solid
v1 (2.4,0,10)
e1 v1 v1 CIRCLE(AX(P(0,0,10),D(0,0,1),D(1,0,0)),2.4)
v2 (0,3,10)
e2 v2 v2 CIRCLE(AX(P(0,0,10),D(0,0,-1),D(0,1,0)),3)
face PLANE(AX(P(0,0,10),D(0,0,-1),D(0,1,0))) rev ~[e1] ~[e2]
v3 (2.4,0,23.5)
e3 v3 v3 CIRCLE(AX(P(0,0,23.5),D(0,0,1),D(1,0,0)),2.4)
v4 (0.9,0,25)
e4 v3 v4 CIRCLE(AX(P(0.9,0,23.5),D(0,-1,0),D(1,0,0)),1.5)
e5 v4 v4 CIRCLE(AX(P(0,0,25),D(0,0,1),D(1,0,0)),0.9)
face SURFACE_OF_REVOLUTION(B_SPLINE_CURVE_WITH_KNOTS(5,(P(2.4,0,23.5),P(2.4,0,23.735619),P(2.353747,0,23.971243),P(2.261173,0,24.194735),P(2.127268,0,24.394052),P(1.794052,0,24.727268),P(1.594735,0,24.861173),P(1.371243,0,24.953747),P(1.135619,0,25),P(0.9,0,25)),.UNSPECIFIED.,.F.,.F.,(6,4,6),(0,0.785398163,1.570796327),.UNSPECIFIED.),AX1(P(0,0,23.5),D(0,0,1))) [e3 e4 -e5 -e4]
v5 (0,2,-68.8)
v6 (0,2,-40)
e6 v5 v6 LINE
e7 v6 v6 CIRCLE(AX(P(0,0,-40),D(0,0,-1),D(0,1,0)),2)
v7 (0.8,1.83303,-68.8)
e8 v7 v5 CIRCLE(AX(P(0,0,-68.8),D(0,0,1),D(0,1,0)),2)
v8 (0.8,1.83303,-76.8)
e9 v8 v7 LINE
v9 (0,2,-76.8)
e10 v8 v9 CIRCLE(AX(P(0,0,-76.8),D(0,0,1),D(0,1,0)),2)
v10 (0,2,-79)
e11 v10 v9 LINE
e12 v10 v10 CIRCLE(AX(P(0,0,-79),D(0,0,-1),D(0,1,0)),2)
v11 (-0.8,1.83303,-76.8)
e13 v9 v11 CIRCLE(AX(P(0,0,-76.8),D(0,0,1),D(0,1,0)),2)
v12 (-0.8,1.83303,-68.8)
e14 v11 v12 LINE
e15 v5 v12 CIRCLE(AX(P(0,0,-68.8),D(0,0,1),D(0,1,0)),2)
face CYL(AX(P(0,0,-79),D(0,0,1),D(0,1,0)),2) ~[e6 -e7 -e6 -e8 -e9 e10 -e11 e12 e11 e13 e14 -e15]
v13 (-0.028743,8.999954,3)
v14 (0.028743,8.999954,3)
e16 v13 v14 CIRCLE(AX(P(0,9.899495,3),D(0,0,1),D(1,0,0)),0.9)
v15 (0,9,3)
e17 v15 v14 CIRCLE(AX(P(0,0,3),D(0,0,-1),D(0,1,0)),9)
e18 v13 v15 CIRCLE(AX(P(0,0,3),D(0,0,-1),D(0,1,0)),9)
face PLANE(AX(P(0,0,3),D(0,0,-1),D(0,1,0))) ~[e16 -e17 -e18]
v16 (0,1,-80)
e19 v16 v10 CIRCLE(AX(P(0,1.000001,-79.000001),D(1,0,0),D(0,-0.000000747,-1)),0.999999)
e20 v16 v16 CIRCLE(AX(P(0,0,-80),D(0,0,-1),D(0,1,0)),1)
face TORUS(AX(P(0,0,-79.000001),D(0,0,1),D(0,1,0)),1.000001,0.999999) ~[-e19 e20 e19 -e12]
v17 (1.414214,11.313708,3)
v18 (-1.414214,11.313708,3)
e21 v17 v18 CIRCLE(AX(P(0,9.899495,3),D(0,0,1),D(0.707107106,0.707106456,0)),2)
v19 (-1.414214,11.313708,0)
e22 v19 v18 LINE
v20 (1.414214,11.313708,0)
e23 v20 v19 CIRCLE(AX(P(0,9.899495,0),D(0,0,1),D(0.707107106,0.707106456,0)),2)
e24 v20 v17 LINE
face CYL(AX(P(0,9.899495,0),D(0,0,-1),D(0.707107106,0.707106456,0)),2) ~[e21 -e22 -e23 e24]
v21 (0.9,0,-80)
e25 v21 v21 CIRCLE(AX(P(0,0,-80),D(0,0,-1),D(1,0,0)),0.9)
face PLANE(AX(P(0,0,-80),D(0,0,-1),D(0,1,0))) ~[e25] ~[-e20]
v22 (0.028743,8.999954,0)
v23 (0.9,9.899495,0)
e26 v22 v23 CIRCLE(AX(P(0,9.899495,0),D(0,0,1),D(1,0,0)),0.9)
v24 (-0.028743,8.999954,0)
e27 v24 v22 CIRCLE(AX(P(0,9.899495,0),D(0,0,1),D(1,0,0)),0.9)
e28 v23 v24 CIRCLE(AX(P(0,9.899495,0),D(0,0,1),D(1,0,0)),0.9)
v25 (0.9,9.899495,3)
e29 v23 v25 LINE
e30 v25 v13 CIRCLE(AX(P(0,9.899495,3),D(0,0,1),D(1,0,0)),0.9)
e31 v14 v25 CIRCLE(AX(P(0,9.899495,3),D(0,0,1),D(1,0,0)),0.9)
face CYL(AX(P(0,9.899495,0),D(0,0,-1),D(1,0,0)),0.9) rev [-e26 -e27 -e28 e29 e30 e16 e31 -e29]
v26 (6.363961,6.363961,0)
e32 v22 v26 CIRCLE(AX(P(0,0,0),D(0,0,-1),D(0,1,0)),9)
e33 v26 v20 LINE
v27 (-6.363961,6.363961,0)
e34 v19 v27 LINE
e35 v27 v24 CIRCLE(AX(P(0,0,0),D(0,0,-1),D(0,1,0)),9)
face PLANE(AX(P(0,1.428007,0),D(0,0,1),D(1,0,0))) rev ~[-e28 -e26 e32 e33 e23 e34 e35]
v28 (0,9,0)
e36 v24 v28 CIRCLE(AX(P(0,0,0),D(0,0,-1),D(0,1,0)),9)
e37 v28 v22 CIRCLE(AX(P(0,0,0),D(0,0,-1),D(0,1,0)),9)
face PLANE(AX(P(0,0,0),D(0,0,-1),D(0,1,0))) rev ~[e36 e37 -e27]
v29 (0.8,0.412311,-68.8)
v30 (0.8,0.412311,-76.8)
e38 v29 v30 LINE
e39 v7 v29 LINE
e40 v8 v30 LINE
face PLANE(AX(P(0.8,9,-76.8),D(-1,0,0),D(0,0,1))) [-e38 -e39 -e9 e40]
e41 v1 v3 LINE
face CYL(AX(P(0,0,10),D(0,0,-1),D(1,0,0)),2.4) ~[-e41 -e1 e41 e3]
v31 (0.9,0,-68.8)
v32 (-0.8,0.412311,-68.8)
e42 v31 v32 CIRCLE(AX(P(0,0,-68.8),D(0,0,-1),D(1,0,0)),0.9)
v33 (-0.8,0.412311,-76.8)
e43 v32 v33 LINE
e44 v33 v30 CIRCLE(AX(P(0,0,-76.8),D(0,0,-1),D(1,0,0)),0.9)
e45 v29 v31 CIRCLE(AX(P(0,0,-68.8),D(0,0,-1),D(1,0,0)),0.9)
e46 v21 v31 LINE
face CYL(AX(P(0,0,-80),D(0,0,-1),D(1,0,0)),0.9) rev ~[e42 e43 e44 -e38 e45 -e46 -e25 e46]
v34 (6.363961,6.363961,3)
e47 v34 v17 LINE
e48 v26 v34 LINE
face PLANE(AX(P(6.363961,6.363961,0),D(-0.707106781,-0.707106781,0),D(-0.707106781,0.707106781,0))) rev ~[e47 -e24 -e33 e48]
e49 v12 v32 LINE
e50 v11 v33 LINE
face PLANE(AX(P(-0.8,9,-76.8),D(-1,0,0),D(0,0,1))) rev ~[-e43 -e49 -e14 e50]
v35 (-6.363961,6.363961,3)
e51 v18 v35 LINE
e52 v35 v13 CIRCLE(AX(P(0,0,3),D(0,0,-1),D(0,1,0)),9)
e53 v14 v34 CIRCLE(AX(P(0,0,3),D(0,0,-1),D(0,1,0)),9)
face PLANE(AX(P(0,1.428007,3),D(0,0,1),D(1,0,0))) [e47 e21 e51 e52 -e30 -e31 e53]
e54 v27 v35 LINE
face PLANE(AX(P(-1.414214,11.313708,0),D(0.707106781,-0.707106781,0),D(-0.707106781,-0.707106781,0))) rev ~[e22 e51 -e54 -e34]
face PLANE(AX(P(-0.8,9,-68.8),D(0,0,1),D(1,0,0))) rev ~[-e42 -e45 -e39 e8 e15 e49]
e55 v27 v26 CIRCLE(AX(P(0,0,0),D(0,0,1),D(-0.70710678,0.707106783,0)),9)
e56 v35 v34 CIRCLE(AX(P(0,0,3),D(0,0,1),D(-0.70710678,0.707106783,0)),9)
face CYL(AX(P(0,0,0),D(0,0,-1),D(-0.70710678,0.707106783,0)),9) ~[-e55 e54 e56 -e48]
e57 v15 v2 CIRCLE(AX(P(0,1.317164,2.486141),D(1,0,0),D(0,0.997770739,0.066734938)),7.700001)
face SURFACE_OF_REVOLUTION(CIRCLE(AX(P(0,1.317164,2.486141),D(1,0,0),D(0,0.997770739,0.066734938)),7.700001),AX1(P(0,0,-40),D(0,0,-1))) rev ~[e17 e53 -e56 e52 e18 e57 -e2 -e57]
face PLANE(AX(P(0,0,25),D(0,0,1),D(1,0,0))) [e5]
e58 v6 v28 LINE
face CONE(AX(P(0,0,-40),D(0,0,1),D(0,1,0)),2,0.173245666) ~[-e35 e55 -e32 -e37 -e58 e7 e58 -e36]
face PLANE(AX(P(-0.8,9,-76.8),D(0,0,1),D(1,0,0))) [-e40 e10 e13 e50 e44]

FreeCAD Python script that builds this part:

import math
import FreeCAD as App
import Part
import Sketcher

V = App.Vector
Q = App.Units.Quantity


def edges_at(feature, points):
    """Names of the edges that pass closest to the given points."""
    edges = feature.Shape.Edges
    near = lambda p: min(range(len(edges)), key=lambda i: edges[i].distToShape(Part.Vertex(*p))[0])
    return sorted({f"Edge{near(p) + 1}" for p in points})


def add_polygon(sketch, points):
    """Adds a closed chain of lines whose ends are joined by coincident constraints."""
    first, n = sketch.GeometryCount, len(points)
    for a, b in zip(points, points[1:] + points[:1]):
        sketch.addGeometry(Part.LineSegment(App.Vector(*a, 0), App.Vector(*b, 0)), False)
    for i in range(n):
        sketch.addConstraint(Sketcher.Constraint("Coincident", first + i, 2, first + (i + 1) % n, 1))

doc = App.newDocument("Part")
body = doc.addObject("PartDesign::Body", "Body")

sketch1 = body.newObject("Sketcher::SketchObject", "Sketch")
sketch1.AttachmentSupport = (doc.getObject("XY_Plane"), [""])
sketch1.MapMode = "FlatFace"
sketch1.addGeometry([
    Part.LineSegment(V(-1.414214, 11.313708, 0), V(-6.363961, 6.363961, 0)),
    Part.ArcOfCircle(Part.Circle(V(0, 0, 0), V(0, 0, 1), 9), math.radians(135), math.radians(405)),
    Part.LineSegment(V(6.363961, 6.363961, 0), V(1.414214, 11.313708, 0)),
    Part.ArcOfCircle(Part.Circle(V(0, 9.899495, 0), V(0, 0, 1), 2), math.radians(44.999974), math.radians(135.000026)),
    Part.Circle(V(0, 9.899495, 0), V(0, 0, 1), 0.9),
], False)
sketch1.addConstraint([
    Sketcher.Constraint("Tangent", 0, 2, 1, 1),
    Sketcher.Constraint("Tangent", 1, 2, 2, 1),
    Sketcher.Constraint("Tangent", 2, 2, 3, 1),
    Sketcher.Constraint("Tangent", 3, 2, 0, 1),
    Sketcher.Constraint("Coincident", 1, 3, -1, 1),
    Sketcher.Constraint("Coincident", 4, 3, 3, 3),
    Sketcher.Constraint("PointOnObject", 3, 3, -2),
    Sketcher.Constraint("Perpendicular", 0, 2),
    Sketcher.Constraint("Radius", 1, Q("9 mm")),
    Sketcher.Constraint("Radius", 3, Q("2 mm")),
    Sketcher.Constraint("Diameter", 4, Q("1.8 mm")),
])
pad1 = body.newObject("PartDesign::Pad", "Pad")
pad1.Profile = sketch1
pad1.Length = 3

sketch2 = body.newObject("Sketcher::SketchObject", "Sketch001")
sketch2.AttachmentSupport = (doc.getObject("YZ_Plane"), [""])
sketch2.MapMode = "FlatFace"
sketch2.addGeometry([
    Part.LineSegment(V(0, 10, 0), V(0, 3, 0)),
    Part.LineSegment(V(0, 3, 0), V(9, 3, 0)),
    Part.ArcOfCircle(Part.Circle(V(1.317164, 2.486141, 0), V(0, 0, 1), 7.700001), math.radians(3.826474), math.radians(77.376115)),
    Part.LineSegment(V(3, 10, 0), V(0, 10, 0)),
    Part.LineSegment(V(9, 0, 0), V(0, 0, 0)),
    Part.LineSegment(V(0, 0, 0), V(0, -80, 0)),
    Part.LineSegment(V(0, -80, 0), V(1, -80, 0)),
    Part.ArcOfCircle(Part.Circle(V(1.000001, -79.000001, 0), V(0, 0, 1), 0.999999), math.radians(-90.000043), math.radians(0.000043)),
    Part.LineSegment(V(2, -79, 0), V(2, -40, 0)),
    Part.LineSegment(V(2, -40, 0), V(9, 0, 0)),
], False)
sketch2.addConstraint([
    Sketcher.Constraint("Coincident", 0, 2, 1, 1),
    Sketcher.Constraint("Coincident", 1, 2, 2, 1),
    Sketcher.Constraint("Coincident", 2, 2, 3, 1),
    Sketcher.Constraint("Coincident", 3, 2, 0, 1),
    Sketcher.Constraint("Coincident", 4, 2, 5, 1),
    Sketcher.Constraint("Coincident", 5, 2, 6, 1),
    Sketcher.Constraint("Tangent", 6, 2, 7, 1),
    Sketcher.Constraint("Tangent", 7, 2, 8, 1),
    Sketcher.Constraint("Coincident", 8, 2, 9, 1),
    Sketcher.Constraint("Coincident", 9, 2, 4, 1),
    Sketcher.Constraint("Vertical", 0),
    Sketcher.Constraint("Horizontal", 1),
    Sketcher.Constraint("Horizontal", 3),
    Sketcher.Constraint("Horizontal", 4),
    Sketcher.Constraint("Vertical", 5),
    Sketcher.Constraint("Horizontal", 6),
    Sketcher.Constraint("Vertical", 8),
    Sketcher.Constraint("Coincident", 4, 2, -1, 1),
    Sketcher.Constraint("PointOnObject", 0, 2, -2),
    Sketcher.Constraint("Vertical", 1, 2, 9, 2),
    Sketcher.Constraint("Radius", 7, Q("0.999999 mm")),
    Sketcher.Constraint("Radius", 2, Q("7.700001 mm")),
    Sketcher.Constraint("DistanceX", 1, 1, 1, 2, Q("9 mm")),
    Sketcher.Constraint("DistanceX", 3, 2, 3, 1, Q("3 mm")),
    Sketcher.Constraint("DistanceX", 6, 1, 6, 2, Q("1 mm")),
    Sketcher.Constraint("DistanceY", 0, 2, 0, 1, Q("7 mm")),
    Sketcher.Constraint("DistanceY", 5, 2, 5, 1, Q("80 mm")),
    Sketcher.Constraint("DistanceY", 8, 1, 8, 2, Q("39 mm")),
    Sketcher.Constraint("DistanceY", -1, 1, 0, 2, Q("3 mm")),
])
revolution = body.newObject("PartDesign::Revolution", "Revolution")
revolution.Profile = sketch2
revolution.ReferenceAxis = (sketch2, ["V_Axis"])
revolution.Angle = 360

sketch3 = body.newObject("Sketcher::SketchObject", "Sketch002")
sketch3.AttachmentSupport = (doc.getObject("XZ_Plane"), [""])
sketch3.MapMode = "FlatFace"
sketch3.AttachmentOffset = App.Placement(V(0, 0, -9), App.Rotation())
add_polygon(sketch3, [(-0.8, -68.8), (-0.8, -76.8), (0.8, -76.8), (0.8, -68.8)])
sketch3.addConstraint([
    Sketcher.Constraint("Vertical", 0),
    Sketcher.Constraint("Horizontal", 1),
    Sketcher.Constraint("Vertical", 2),
    Sketcher.Constraint("Horizontal", 3),
    Sketcher.Constraint("DistanceY", 0, 2, 0, 1, Q("8 mm")),
    Sketcher.Constraint("DistanceX", 1, 1, 1, 2, Q("1.6 mm")),
    Sketcher.Constraint("DistanceX", 0, 2, -1, 1, Q("0.8 mm")),
    Sketcher.Constraint("DistanceY", 0, 2, -1, 1, Q("76.8 mm")),
])
pocket1 = body.newObject("PartDesign::Pocket", "Pocket")
pocket1.Profile = sketch3
pocket1.Length = 9
pocket1.Reversed = True

sketch4 = body.newObject("Sketcher::SketchObject", "Sketch003")
sketch4.AttachmentSupport = (doc.getObject("XY_Plane"), [""])
sketch4.MapMode = "FlatFace"
sketch4.AttachmentOffset = App.Placement(V(0, 0, -80), App.Rotation())
sketch4.addGeometry(Part.Circle(V(0, 0, 0), V(0, 0, 1), 0.9), False)
sketch4.addConstraint([
    Sketcher.Constraint("Coincident", 0, 3, -1, 1),
    Sketcher.Constraint("Diameter", 0, Q("1.8 mm")),
])
pocket2 = body.newObject("PartDesign::Pocket", "Pocket001")
pocket2.Profile = sketch4
pocket2.Length = 11.2
pocket2.Reversed = True

sketch5 = body.newObject("Sketcher::SketchObject", "Sketch004")
sketch5.AttachmentSupport = (doc.getObject("XY_Plane"), [""])
sketch5.MapMode = "FlatFace"
sketch5.AttachmentOffset = App.Placement(V(0, 0, 10), App.Rotation())
sketch5.addGeometry(Part.Circle(V(0, 0, 0), V(0, 0, 1), 2.4), False)
sketch5.addConstraint([
    Sketcher.Constraint("Coincident", 0, 3, -1, 1),
    Sketcher.Constraint("Diameter", 0, Q("4.8 mm")),
])
pad2 = body.newObject("PartDesign::Pad", "Pad001")
pad2.Profile = sketch5
pad2.Length = 15
doc.recompute()

fillet = body.newObject("PartDesign::Fillet", "Fillet")
fillet.Base = (pad2, edges_at(pad2, [(-2.4, 0, 25)]))
fillet.Radius = 1.5

doc.recompute()
